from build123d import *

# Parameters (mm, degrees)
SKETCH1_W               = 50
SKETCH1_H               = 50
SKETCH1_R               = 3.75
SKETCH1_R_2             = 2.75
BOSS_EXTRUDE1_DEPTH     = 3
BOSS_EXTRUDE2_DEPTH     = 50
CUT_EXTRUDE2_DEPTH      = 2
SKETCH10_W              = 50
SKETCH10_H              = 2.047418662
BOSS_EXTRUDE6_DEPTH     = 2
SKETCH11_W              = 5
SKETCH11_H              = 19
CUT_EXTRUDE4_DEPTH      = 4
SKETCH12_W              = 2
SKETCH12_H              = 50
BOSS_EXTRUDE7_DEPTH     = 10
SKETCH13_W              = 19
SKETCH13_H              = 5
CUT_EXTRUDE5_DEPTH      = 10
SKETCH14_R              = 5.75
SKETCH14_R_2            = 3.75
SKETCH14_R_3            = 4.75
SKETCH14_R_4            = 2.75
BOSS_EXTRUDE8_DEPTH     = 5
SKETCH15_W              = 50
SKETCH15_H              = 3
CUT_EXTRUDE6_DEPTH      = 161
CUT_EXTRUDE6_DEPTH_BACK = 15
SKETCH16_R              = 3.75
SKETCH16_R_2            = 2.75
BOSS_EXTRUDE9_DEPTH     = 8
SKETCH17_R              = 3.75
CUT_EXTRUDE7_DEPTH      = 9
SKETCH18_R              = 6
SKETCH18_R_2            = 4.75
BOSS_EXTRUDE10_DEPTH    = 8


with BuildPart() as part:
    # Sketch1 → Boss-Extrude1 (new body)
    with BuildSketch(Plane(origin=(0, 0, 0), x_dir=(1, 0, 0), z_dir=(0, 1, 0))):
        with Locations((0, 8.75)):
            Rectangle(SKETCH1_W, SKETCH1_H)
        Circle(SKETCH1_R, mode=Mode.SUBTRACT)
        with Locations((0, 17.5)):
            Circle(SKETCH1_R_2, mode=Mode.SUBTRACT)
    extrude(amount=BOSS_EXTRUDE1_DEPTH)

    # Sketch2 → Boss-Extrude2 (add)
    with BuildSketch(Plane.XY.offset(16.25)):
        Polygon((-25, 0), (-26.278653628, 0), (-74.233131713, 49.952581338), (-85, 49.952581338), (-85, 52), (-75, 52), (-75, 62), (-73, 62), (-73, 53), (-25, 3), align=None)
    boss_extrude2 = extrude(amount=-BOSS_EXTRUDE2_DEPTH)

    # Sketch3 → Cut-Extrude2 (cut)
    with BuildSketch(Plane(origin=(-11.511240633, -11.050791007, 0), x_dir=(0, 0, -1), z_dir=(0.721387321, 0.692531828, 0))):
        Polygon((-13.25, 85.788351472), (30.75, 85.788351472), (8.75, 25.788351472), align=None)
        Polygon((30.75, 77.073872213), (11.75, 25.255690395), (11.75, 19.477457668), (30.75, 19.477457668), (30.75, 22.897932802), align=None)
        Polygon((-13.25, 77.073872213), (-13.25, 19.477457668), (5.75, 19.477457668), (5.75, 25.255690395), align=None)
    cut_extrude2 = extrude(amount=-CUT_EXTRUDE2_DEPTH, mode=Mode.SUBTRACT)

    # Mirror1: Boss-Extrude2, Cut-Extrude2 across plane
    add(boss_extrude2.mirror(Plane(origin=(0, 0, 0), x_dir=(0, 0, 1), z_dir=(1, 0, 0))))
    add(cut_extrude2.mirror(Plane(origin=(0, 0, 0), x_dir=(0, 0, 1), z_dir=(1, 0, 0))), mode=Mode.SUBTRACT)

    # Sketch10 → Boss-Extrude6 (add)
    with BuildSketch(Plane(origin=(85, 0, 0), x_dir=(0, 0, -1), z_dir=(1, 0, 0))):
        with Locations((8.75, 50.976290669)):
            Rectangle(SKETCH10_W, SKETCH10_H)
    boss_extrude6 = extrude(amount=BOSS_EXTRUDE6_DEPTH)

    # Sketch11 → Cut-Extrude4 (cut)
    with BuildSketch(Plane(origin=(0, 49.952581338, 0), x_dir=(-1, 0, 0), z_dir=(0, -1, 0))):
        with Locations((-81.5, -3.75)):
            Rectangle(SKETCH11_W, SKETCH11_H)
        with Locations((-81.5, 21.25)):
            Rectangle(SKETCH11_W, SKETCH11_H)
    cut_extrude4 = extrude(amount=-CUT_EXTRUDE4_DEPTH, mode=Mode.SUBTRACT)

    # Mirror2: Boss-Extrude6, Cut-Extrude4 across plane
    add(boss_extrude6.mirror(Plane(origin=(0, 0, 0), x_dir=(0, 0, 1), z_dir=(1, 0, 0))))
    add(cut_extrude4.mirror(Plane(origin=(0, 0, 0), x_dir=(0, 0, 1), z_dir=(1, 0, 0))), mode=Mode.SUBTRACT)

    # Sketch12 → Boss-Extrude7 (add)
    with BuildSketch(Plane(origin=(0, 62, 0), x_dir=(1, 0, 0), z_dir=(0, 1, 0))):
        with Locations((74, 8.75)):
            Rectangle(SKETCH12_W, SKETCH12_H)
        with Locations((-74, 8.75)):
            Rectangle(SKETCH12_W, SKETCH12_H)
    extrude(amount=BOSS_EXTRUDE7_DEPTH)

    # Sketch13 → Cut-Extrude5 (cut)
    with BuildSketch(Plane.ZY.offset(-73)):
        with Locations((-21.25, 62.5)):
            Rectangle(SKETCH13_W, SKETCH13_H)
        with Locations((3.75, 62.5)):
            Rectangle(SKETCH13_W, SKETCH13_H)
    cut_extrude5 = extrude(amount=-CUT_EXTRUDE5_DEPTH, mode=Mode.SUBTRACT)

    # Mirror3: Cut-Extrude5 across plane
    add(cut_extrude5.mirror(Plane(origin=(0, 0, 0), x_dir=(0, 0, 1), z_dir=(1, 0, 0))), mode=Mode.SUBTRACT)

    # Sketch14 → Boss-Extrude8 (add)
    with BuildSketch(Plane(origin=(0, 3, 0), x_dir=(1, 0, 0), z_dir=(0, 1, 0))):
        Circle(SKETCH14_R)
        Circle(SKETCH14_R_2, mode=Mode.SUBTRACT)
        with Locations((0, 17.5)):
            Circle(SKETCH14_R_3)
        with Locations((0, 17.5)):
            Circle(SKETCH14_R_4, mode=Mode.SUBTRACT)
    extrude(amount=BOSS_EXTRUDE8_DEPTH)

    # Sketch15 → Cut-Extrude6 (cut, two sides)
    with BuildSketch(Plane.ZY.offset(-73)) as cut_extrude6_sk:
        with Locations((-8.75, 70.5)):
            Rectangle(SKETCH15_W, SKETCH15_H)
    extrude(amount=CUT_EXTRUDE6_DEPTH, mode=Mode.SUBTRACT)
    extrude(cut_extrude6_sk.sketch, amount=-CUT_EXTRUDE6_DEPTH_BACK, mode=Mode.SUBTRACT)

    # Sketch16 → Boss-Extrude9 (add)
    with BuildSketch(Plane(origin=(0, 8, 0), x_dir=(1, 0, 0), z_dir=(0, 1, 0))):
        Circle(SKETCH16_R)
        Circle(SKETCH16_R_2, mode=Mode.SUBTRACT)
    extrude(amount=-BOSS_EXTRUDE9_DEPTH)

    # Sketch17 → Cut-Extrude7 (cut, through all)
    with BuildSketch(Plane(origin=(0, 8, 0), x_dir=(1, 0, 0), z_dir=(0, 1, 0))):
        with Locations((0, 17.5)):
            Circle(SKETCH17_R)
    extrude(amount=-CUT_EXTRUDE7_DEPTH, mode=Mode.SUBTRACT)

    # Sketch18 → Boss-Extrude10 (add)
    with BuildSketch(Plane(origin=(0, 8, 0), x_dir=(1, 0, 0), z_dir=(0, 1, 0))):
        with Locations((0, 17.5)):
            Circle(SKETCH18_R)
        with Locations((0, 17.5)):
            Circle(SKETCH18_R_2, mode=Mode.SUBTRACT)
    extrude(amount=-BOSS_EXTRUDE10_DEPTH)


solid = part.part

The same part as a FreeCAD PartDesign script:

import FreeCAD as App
import Part
import Sketcher


def add_polygon(sketch, points):
    """Adds a closed chain of lines whose ends are joined by coincident constraints."""
    first, n = sketch.GeometryCount, len(points)
    for a, b in zip(points, points[1:] + points[:1]):
        sketch.addGeometry(Part.LineSegment(App.Vector(*a, 0), App.Vector(*b, 0)), False)
    for i in range(n):
        sketch.addConstraint(Sketcher.Constraint("Coincident", first + i, 2, first + (i + 1) % n, 1))

doc = App.newDocument("Part")
body = doc.addObject("PartDesign::Body", "Body")

sketch1 = body.newObject("Sketcher::SketchObject", "Sketch")
sketch1.AttachmentSupport = (doc.getObject("XZ_Plane"), [""])
sketch1.MapMode = "FlatFace"
add_polygon(sketch1, [(-25, -33.8), (-25, 16.2), (25, 16.2), (25, -33.8)])
sketch1.addGeometry(Part.Circle(App.Vector(0, 0, 0), App.Vector(0, 0, 1), 3.8), False)
sketch1.addGeometry(Part.Circle(App.Vector(0, -17.5, 0), App.Vector(0, 0, 1), 2.8), False)
sketch1.addConstraint([
    Sketcher.Constraint("Vertical", 0),
    Sketcher.Constraint("Horizontal", 1),
    Sketcher.Constraint("Vertical", 2),
    Sketcher.Constraint("Horizontal", 3),
    Sketcher.Constraint("Coincident", 4, 3, -1, 1),
    Sketcher.Constraint("PointOnObject", 5, 3, -2),
    Sketcher.Constraint("Equal", 3, 0),
    Sketcher.Constraint("Diameter", 4, 7.5),
    Sketcher.Constraint("Diameter", 5, 5.5),
    Sketcher.Constraint("DistanceX", 1, 1, 1, 2, 50.0),
    Sketcher.Constraint("DistanceX", 0, 2, -1, 1, 25.0),
    Sketcher.Constraint("DistanceY", 5, 3, -1, 1, 17.5),
    Sketcher.Constraint("DistanceY", -1, 1, 0, 2, 16.25),
])
pad1 = body.newObject("PartDesign::Pad", "Pad")
pad1.Profile = sketch1
pad1.Length = 3
pad1.Reversed = True

sketch2 = body.newObject("Sketcher::SketchObject", "Sketch001")
sketch2.AttachmentSupport = (doc.getObject("XY_Plane"), [""])
sketch2.MapMode = "FlatFace"
sketch2.AttachmentOffset = App.Placement(App.Vector(0, 0, 16.25), App.Rotation())
add_polygon(sketch2, [(-26.3, 0), (-25, 0), (-25, 3), (-73, 53), (-73, 62), (-75, 62), (-75, 52), (-85, 52), (-85, 50), (-74.2, 50)])
sketch2.addConstraint([
    Sketcher.Constraint("Horizontal", 0),
    Sketcher.Constraint("Vertical", 1),
    Sketcher.Constraint("Vertical", 3),
    Sketcher.Constraint("Horizontal", 4),
    Sketcher.Constraint("Vertical", 5),
    Sketcher.Constraint("Horizontal", 6),
    Sketcher.Constraint("Vertical", 7),
    Sketcher.Constraint("Horizontal", 8),
    Sketcher.Constraint("PointOnObject", 0, 2, -1),
    Sketcher.Constraint("Parallel", 2, 9),
    Sketcher.Constraint("Equal", 6, 5),
    Sketcher.Constraint("DistanceX", 4, 2, 4, 1, 2.0),
    Sketcher.Constraint("DistanceX", 6, 2, 6, 1, 10.0),
    Sketcher.Constraint("DistanceY", 1, 1, 1, 2, 3.0),
    Sketcher.Constraint("DistanceY", 3, 1, 3, 2, 9.0),
    Sketcher.Constraint("DistanceX", 0, 2, -1, 1, 25.0),
    Sketcher.Constraint("DistanceX", 2, 2, -1, 1, 73.0),
    Sketcher.Constraint("DistanceY", -1, 1, 2, 2, 53.0),
    Sketcher.Constraint("DistanceX", 8, 1, 8, 2, 10.766868),
    Sketcher.Constraint("DistanceY", 7, 2, 7, 1, 2.047419),
])
pad2 = body.newObject("PartDesign::Pad", "Pad001")
pad2.Profile = sketch2
pad2.Length = 50
pad2.Reversed = True

sketch3 = body.newObject("Sketcher::SketchObject", "Sketch002")
sketch3.Placement = App.Placement(App.Vector(-11.511241, -11.050791, 0), App.Rotation(App.Vector(0, 0, -1), App.Vector(-0.692531828, 0.721387321, 0), App.Vector(0.721387321, 0.692531828, 0), "ZXY"))
add_polygon(sketch3, [(31, 86), (-13, 86), (9, 26)])
add_polygon(sketch3, [(31, 77), (12, 25), (12, 19), (31, 19)])
add_polygon(sketch3, [(-13, 77), (-13, 19), (6, 19), (6, 25)])
sketch3.addConstraint([
    Sketcher.Constraint("Horizontal", 0),
    Sketcher.Constraint("Vertical", 4),
    Sketcher.Constraint("Horizontal", 5),
    Sketcher.Constraint("Vertical", 6),
    Sketcher.Constraint("Vertical", 7),
    Sketcher.Constraint("Horizontal", 8),
    Sketcher.Constraint("Vertical", 9),
    Sketcher.Constraint("Parallel", 2, 3),
    Sketcher.Constraint("Parallel", 1, 10),
    Sketcher.Constraint("Horizontal", 5, 2, 7, 2),
    Sketcher.Constraint("Horizontal", 3, 2, 9, 2),
    Sketcher.Constraint("Horizontal", 6, 2, 10, 2),
    Sketcher.Constraint("Vertical", 2, 2, 5, 2),
    Sketcher.Constraint("Vertical", 0, 2, 7, 2),
    Sketcher.Constraint("Equal", 5, 8),
    Sketcher.Constraint("DistanceX", 0, 2, 0, 1, 44.0),
    Sketcher.Constraint("DistanceX", 5, 1, 5, 2, 19.0),
    Sketcher.Constraint("DistanceY", 1, 2, 0, 2, 60.0),
    Sketcher.Constraint("DistanceX", 0, 2, -1, 1, 13.25),
    Sketcher.Constraint("DistanceY", 4, 2, 4, 1, 5.778233),
    Sketcher.Constraint("DistanceY", -1, 1, 0, 2, 85.788351),
    Sketcher.Constraint("DistanceY", -1, 1, 3, 2, 25.25569),
])
pocket1 = body.newObject("PartDesign::Pocket", "Pocket")
pocket1.Profile = sketch3
pocket1.Length = 2
doc.recompute()

mirrored = body.newObject("PartDesign::Mirrored", "Mirrored")
mirrored.Originals = [pad2, pocket1]
mirrored.MirrorPlane = (doc.getObject("YZ_Plane"), [""])
body.Tip = mirrored

sketch4 = body.newObject("Sketcher::SketchObject", "Sketch003")
sketch4.AttachmentSupport = (doc.getObject("YZ_Plane"), [""])
sketch4.MapMode = "FlatFace"
sketch4.AttachmentOffset = App.Placement(App.Vector(0, 0, 85), App.Rotation())
add_polygon(sketch4, [(52, 16.2), (50, 16.2), (50, -33.8), (52, -33.8)])
sketch4.addConstraint([
    Sketcher.Constraint("Horizontal", 0),
    Sketcher.Constraint("Vertical", 1),
    Sketcher.Constraint("Horizontal", 2),
    Sketcher.Constraint("Vertical", 3),
    Sketcher.Constraint("DistanceY", 1, 2, 1, 1, 50.0),
    Sketcher.Constraint("DistanceX", -1, 1, 2, 2, 52.0),
    Sketcher.Constraint("DistanceY", -1, 1, 0, 2, 16.25),
    Sketcher.Constraint("DistanceX", 0, 2, 0, 1, 2.047419),
])
pad3 = body.newObject("PartDesign::Pad", "Pad002")
pad3.Profile = sketch4
pad3.Length = 2

sketch5 = body.newObject("Sketcher::SketchObject", "Sketch004")
sketch5.AttachmentSupport = (doc.getObject("XZ_Plane"), [""])
sketch5.MapMode = "FlatFace"
sketch5.AttachmentOffset = App.Placement(App.Vector(0, 0, -49.952581), App.Rotation())
add_polygon(sketch5, [(84, -6), (84, 13), (79, 13), (79, -6)])
add_polygon(sketch5, [(84, -31), (84, -12), (79, -12), (79, -31)])
sketch5.addConstraint([
    Sketcher.Constraint("Vertical", 0),
    Sketcher.Constraint("Horizontal", 1),
    Sketcher.Constraint("Vertical", 2),
    Sketcher.Constraint("Horizontal", 3),
    Sketcher.Constraint("Vertical", 4),
    Sketcher.Constraint("Horizontal", 5),
    Sketcher.Constraint("Vertical", 6),
    Sketcher.Constraint("Horizontal", 7),
    Sketcher.Constraint("Vertical", 3, 2, 4, 2),
    Sketcher.Constraint("Vertical", 2, 2, 5, 2),
    Sketcher.Constraint("Equal", 2, 4),
    Sketcher.Constraint("DistanceX", 1, 2, 1, 1, 5.0),
    Sketcher.Constraint("DistanceY", 0, 1, 0, 2, 19.0),
    Sketcher.Constraint("DistanceX", -1, 1, 0, 2, 84.0),
    Sketcher.Constraint("DistanceY", 4, 2, 3, 2, 6.0),
    Sketcher.Constraint("DistanceY", -1, 1, 0, 2, 13.25),
])
pocket2 = body.newObject("PartDesign::Pocket", "Pocket001")
pocket2.Profile = sketch5
pocket2.Length = 4
doc.recompute()

mirrored2 = body.newObject("PartDesign::Mirrored", "Mirrored001")
mirrored2.Originals = [pad3, pocket2]
mirrored2.MirrorPlane = (doc.getObject("YZ_Plane"), [""])
body.Tip = mirrored2

sketch6 = body.newObject("Sketcher::SketchObject", "Sketch005")
sketch6.AttachmentSupport = (doc.getObject("XZ_Plane"), [""])
sketch6.MapMode = "FlatFace"
sketch6.AttachmentOffset = App.Placement(App.Vector(0, 0, -62), App.Rotation())
add_polygon(sketch6, [(73, -33.8), (73, 16.2), (75, 16.2), (75, -33.8)])
add_polygon(sketch6, [(-75, -33.8), (-75, 16.2), (-73, 16.2), (-73, -33.8)])
sketch6.addConstraint([
    Sketcher.Constraint("Vertical", 0),
    Sketcher.Constraint("Horizontal", 1),
    Sketcher.Constraint("Vertical", 2),
    Sketcher.Constraint("Horizontal", 3),
    Sketcher.Constraint("Vertical", 4),
    Sketcher.Constraint("Horizontal", 5),
    Sketcher.Constraint("Vertical", 6),
    Sketcher.Constraint("Horizontal", 7),
    Sketcher.Constraint("Symmetric", 1, 2, 4, 2, -2),
    Sketcher.Constraint("Symmetric", 3, 2, 6, 2, -2),
    Sketcher.Constraint("DistanceX", 1, 1, 1, 2, 2.0),
    Sketcher.Constraint("DistanceY", 0, 1, 0, 2, 50.0),
    Sketcher.Constraint("DistanceX", -1, 1, 0, 2, 73.0),
    Sketcher.Constraint("DistanceY", -1, 1, 0, 2, 16.25),
])
pad4 = body.newObject("PartDesign::Pad", "Pad003")
pad4.Profile = sketch6
pad4.Length = 10
pad4.Reversed = True

sketch7 = body.newObject("Sketcher::SketchObject", "Sketch006")
sketch7.AttachmentSupport = (doc.getObject("YZ_Plane"), [""])
sketch7.MapMode = "FlatFace"
sketch7.AttachmentOffset = App.Placement(App.Vector(0, 0, 73), App.Rotation())
add_polygon(sketch7, [(65, -31), (60, -31), (60, -12), (65, -12)])
add_polygon(sketch7, [(65, -6), (60, -6), (60, 13), (65, 13)])
sketch7.addConstraint([
    Sketcher.Constraint("Horizontal", 0),
    Sketcher.Constraint("Vertical", 1),
    Sketcher.Constraint("Horizontal", 2),
    Sketcher.Constraint("Vertical", 3),
    Sketcher.Constraint("Horizontal", 4),
    Sketcher.Constraint("Vertical", 5),
    Sketcher.Constraint("Horizontal", 6),
    Sketcher.Constraint("Vertical", 7),
    Sketcher.Constraint("Vertical", 1, 2, 4, 2),
    Sketcher.Constraint("Vertical", 3, 2, 6, 2),
    Sketcher.Constraint("Equal", 3, 5),
    Sketcher.Constraint("DistanceX", 0, 2, 0, 1, 5.0),
    Sketcher.Constraint("DistanceY", 1, 1, 1, 2, 19.0),
    Sketcher.Constraint("DistanceX", -1, 1, 0, 2, 60.0),
    Sketcher.Constraint("DistanceY", 1, 2, 4, 2, 6.0),
    Sketcher.Constraint("DistanceY", 0, 2, -1, 1, 30.75),
])
pocket3 = body.newObject("PartDesign::Pocket", "Pocket002")
pocket3.Profile = sketch7
pocket3.Length = 10
pocket3.Reversed = True
doc.recompute()

mirrored3 = body.newObject("PartDesign::Mirrored", "Mirrored002")
mirrored3.Originals = [pocket3]
mirrored3.MirrorPlane = (doc.getObject("YZ_Plane"), [""])
body.Tip = mirrored3

sketch8 = body.newObject("Sketcher::SketchObject", "Sketch007")
sketch8.AttachmentSupport = (doc.getObject("XZ_Plane"), [""])
sketch8.MapMode = "FlatFace"
sketch8.AttachmentOffset = App.Placement(App.Vector(0, 0, -3), App.Rotation())
sketch8.addGeometry([
    Part.Circle(App.Vector(0, 0, 0), App.Vector(0, 0, 1), 5.8),
    Part.Circle(App.Vector(0, 0, 0), App.Vector(0, 0, 1), 3.8),
    Part.Circle(App.Vector(0, -17.5, 0), App.Vector(0, 0, 1), 4.8),
    Part.Circle(App.Vector(0, -17.5, 0), App.Vector(0, 0, 1), 2.8),
], False)
sketch8.addConstraint([
    Sketcher.Constraint("Coincident", 0, 3, -1, 1),
    Sketcher.Constraint("Coincident", 1, 3, -1, 1),
    Sketcher.Constraint("Coincident", 3, 3, 2, 3),
    Sketcher.Constraint("PointOnObject", 2, 3, -2),
    Sketcher.Constraint("Diameter", 0, 11.5),
    Sketcher.Constraint("Diameter", 1, 7.5),
    Sketcher.Constraint("Diameter", 2, 9.5),
    Sketcher.Constraint("Diameter", 3, 5.5),
    Sketcher.Constraint("DistanceY", 2, 3, -1, 1, 17.5),
])
pad5 = body.newObject("PartDesign::Pad", "Pad004")
pad5.Profile = sketch8
pad5.Length = 5
pad5.Reversed = True

sketch9 = body.newObject("Sketcher::SketchObject", "Sketch008")
sketch9.AttachmentSupport = (doc.getObject("YZ_Plane"), [""])
sketch9.MapMode = "FlatFace"
sketch9.AttachmentOffset = App.Placement(App.Vector(0, 0, 73), App.Rotation())
add_polygon(sketch9, [(72, -33.8), (69, -33.8), (69, 16.2), (72, 16.2)])
sketch9.addConstraint([
    Sketcher.Constraint("Horizontal", 0),
    Sketcher.Constraint("Vertical", 1),
    Sketcher.Constraint("Horizontal", 2),
    Sketcher.Constraint("Vertical", 3),
    Sketcher.Constraint("DistanceX", 0, 2, 0, 1, 3.0),
    Sketcher.Constraint("DistanceY", 1, 1, 1, 2, 50.0),
    Sketcher.Constraint("DistanceX", -1, 1, 0, 2, 69.0),
    Sketcher.Constraint("DistanceY", 0, 2, -1, 1, 33.75),
])
pocket4 = body.newObject("PartDesign::Pocket", "Pocket003")
pocket4.Profile = sketch9
pocket4.Type = "ThroughAll"
pocket4.Midplane = True

sketch10 = body.newObject("Sketcher::SketchObject", "Sketch009")
sketch10.AttachmentSupport = (doc.getObject("XZ_Plane"), [""])
sketch10.MapMode = "FlatFace"
sketch10.AttachmentOffset = App.Placement(App.Vector(0, 0, -8), App.Rotation())
sketch10.addGeometry([
    Part.Circle(App.Vector(0, 0, 0), App.Vector(0, 0, 1), 3.8),
    Part.Circle(App.Vector(0, 0, 0), App.Vector(0, 0, 1), 2.8),
], False)
sketch10.addConstraint([
    Sketcher.Constraint("Coincident", 0, 3, -1, 1),
    Sketcher.Constraint("Coincident", 1, 3, -1, 1),
    Sketcher.Constraint("Diameter", 0, 7.5),
    Sketcher.Constraint("Diameter", 1, 5.5),
])
pad6 = body.newObject("PartDesign::Pad", "Pad005")
pad6.Profile = sketch10
pad6.Length = 8

sketch11 = body.newObject("Sketcher::SketchObject", "Sketch010")
sketch11.AttachmentSupport = (doc.getObject("XZ_Plane"), [""])
sketch11.MapMode = "FlatFace"
sketch11.AttachmentOffset = App.Placement(App.Vector(0, 0, -8), App.Rotation())
sketch11.addGeometry(Part.Circle(App.Vector(0, -17.5, 0), App.Vector(0, 0, 1), 3.8), False)
sketch11.addConstraint([
    Sketcher.Constraint("PointOnObject", 0, 3, -2),
    Sketcher.Constraint("Diameter", 0, 7.5),
    Sketcher.Constraint("DistanceY", 0, 3, -1, 1, 17.5),
])
pocket5 = body.newObject("PartDesign::Pocket", "Pocket004")
pocket5.Profile = sketch11
pocket5.Type = "ThroughAll"
pocket5.Reversed = True

sketch12 = body.newObject("Sketcher::SketchObject", "Sketch011")
sketch12.AttachmentSupport = (doc.getObject("XZ_Plane"), [""])
sketch12.MapMode = "FlatFace"
sketch12.AttachmentOffset = App.Placement(App.Vector(0, 0, -8), App.Rotation())
sketch12.addGeometry([
    Part.Circle(App.Vector(0, -17.5, 0), App.Vector(0, 0, 1), 6),
    Part.Circle(App.Vector(0, -17.5, 0), App.Vector(0, 0, 1), 4.8),
], False)
sketch12.addConstraint([
    Sketcher.Constraint("Coincident", 1, 3, 0, 3),
    Sketcher.Constraint("PointOnObject", 0, 3, -2),
    Sketcher.Constraint("Diameter", 0, 12.0),
    Sketcher.Constraint("Diameter", 1, 9.5),
    Sketcher.Constraint("DistanceY", 0, 3, -1, 1, 17.5),
])
pad7 = body.newObject("PartDesign::Pad", "Pad006")
pad7.Profile = sketch12
pad7.Length = 8

doc.recompute()
